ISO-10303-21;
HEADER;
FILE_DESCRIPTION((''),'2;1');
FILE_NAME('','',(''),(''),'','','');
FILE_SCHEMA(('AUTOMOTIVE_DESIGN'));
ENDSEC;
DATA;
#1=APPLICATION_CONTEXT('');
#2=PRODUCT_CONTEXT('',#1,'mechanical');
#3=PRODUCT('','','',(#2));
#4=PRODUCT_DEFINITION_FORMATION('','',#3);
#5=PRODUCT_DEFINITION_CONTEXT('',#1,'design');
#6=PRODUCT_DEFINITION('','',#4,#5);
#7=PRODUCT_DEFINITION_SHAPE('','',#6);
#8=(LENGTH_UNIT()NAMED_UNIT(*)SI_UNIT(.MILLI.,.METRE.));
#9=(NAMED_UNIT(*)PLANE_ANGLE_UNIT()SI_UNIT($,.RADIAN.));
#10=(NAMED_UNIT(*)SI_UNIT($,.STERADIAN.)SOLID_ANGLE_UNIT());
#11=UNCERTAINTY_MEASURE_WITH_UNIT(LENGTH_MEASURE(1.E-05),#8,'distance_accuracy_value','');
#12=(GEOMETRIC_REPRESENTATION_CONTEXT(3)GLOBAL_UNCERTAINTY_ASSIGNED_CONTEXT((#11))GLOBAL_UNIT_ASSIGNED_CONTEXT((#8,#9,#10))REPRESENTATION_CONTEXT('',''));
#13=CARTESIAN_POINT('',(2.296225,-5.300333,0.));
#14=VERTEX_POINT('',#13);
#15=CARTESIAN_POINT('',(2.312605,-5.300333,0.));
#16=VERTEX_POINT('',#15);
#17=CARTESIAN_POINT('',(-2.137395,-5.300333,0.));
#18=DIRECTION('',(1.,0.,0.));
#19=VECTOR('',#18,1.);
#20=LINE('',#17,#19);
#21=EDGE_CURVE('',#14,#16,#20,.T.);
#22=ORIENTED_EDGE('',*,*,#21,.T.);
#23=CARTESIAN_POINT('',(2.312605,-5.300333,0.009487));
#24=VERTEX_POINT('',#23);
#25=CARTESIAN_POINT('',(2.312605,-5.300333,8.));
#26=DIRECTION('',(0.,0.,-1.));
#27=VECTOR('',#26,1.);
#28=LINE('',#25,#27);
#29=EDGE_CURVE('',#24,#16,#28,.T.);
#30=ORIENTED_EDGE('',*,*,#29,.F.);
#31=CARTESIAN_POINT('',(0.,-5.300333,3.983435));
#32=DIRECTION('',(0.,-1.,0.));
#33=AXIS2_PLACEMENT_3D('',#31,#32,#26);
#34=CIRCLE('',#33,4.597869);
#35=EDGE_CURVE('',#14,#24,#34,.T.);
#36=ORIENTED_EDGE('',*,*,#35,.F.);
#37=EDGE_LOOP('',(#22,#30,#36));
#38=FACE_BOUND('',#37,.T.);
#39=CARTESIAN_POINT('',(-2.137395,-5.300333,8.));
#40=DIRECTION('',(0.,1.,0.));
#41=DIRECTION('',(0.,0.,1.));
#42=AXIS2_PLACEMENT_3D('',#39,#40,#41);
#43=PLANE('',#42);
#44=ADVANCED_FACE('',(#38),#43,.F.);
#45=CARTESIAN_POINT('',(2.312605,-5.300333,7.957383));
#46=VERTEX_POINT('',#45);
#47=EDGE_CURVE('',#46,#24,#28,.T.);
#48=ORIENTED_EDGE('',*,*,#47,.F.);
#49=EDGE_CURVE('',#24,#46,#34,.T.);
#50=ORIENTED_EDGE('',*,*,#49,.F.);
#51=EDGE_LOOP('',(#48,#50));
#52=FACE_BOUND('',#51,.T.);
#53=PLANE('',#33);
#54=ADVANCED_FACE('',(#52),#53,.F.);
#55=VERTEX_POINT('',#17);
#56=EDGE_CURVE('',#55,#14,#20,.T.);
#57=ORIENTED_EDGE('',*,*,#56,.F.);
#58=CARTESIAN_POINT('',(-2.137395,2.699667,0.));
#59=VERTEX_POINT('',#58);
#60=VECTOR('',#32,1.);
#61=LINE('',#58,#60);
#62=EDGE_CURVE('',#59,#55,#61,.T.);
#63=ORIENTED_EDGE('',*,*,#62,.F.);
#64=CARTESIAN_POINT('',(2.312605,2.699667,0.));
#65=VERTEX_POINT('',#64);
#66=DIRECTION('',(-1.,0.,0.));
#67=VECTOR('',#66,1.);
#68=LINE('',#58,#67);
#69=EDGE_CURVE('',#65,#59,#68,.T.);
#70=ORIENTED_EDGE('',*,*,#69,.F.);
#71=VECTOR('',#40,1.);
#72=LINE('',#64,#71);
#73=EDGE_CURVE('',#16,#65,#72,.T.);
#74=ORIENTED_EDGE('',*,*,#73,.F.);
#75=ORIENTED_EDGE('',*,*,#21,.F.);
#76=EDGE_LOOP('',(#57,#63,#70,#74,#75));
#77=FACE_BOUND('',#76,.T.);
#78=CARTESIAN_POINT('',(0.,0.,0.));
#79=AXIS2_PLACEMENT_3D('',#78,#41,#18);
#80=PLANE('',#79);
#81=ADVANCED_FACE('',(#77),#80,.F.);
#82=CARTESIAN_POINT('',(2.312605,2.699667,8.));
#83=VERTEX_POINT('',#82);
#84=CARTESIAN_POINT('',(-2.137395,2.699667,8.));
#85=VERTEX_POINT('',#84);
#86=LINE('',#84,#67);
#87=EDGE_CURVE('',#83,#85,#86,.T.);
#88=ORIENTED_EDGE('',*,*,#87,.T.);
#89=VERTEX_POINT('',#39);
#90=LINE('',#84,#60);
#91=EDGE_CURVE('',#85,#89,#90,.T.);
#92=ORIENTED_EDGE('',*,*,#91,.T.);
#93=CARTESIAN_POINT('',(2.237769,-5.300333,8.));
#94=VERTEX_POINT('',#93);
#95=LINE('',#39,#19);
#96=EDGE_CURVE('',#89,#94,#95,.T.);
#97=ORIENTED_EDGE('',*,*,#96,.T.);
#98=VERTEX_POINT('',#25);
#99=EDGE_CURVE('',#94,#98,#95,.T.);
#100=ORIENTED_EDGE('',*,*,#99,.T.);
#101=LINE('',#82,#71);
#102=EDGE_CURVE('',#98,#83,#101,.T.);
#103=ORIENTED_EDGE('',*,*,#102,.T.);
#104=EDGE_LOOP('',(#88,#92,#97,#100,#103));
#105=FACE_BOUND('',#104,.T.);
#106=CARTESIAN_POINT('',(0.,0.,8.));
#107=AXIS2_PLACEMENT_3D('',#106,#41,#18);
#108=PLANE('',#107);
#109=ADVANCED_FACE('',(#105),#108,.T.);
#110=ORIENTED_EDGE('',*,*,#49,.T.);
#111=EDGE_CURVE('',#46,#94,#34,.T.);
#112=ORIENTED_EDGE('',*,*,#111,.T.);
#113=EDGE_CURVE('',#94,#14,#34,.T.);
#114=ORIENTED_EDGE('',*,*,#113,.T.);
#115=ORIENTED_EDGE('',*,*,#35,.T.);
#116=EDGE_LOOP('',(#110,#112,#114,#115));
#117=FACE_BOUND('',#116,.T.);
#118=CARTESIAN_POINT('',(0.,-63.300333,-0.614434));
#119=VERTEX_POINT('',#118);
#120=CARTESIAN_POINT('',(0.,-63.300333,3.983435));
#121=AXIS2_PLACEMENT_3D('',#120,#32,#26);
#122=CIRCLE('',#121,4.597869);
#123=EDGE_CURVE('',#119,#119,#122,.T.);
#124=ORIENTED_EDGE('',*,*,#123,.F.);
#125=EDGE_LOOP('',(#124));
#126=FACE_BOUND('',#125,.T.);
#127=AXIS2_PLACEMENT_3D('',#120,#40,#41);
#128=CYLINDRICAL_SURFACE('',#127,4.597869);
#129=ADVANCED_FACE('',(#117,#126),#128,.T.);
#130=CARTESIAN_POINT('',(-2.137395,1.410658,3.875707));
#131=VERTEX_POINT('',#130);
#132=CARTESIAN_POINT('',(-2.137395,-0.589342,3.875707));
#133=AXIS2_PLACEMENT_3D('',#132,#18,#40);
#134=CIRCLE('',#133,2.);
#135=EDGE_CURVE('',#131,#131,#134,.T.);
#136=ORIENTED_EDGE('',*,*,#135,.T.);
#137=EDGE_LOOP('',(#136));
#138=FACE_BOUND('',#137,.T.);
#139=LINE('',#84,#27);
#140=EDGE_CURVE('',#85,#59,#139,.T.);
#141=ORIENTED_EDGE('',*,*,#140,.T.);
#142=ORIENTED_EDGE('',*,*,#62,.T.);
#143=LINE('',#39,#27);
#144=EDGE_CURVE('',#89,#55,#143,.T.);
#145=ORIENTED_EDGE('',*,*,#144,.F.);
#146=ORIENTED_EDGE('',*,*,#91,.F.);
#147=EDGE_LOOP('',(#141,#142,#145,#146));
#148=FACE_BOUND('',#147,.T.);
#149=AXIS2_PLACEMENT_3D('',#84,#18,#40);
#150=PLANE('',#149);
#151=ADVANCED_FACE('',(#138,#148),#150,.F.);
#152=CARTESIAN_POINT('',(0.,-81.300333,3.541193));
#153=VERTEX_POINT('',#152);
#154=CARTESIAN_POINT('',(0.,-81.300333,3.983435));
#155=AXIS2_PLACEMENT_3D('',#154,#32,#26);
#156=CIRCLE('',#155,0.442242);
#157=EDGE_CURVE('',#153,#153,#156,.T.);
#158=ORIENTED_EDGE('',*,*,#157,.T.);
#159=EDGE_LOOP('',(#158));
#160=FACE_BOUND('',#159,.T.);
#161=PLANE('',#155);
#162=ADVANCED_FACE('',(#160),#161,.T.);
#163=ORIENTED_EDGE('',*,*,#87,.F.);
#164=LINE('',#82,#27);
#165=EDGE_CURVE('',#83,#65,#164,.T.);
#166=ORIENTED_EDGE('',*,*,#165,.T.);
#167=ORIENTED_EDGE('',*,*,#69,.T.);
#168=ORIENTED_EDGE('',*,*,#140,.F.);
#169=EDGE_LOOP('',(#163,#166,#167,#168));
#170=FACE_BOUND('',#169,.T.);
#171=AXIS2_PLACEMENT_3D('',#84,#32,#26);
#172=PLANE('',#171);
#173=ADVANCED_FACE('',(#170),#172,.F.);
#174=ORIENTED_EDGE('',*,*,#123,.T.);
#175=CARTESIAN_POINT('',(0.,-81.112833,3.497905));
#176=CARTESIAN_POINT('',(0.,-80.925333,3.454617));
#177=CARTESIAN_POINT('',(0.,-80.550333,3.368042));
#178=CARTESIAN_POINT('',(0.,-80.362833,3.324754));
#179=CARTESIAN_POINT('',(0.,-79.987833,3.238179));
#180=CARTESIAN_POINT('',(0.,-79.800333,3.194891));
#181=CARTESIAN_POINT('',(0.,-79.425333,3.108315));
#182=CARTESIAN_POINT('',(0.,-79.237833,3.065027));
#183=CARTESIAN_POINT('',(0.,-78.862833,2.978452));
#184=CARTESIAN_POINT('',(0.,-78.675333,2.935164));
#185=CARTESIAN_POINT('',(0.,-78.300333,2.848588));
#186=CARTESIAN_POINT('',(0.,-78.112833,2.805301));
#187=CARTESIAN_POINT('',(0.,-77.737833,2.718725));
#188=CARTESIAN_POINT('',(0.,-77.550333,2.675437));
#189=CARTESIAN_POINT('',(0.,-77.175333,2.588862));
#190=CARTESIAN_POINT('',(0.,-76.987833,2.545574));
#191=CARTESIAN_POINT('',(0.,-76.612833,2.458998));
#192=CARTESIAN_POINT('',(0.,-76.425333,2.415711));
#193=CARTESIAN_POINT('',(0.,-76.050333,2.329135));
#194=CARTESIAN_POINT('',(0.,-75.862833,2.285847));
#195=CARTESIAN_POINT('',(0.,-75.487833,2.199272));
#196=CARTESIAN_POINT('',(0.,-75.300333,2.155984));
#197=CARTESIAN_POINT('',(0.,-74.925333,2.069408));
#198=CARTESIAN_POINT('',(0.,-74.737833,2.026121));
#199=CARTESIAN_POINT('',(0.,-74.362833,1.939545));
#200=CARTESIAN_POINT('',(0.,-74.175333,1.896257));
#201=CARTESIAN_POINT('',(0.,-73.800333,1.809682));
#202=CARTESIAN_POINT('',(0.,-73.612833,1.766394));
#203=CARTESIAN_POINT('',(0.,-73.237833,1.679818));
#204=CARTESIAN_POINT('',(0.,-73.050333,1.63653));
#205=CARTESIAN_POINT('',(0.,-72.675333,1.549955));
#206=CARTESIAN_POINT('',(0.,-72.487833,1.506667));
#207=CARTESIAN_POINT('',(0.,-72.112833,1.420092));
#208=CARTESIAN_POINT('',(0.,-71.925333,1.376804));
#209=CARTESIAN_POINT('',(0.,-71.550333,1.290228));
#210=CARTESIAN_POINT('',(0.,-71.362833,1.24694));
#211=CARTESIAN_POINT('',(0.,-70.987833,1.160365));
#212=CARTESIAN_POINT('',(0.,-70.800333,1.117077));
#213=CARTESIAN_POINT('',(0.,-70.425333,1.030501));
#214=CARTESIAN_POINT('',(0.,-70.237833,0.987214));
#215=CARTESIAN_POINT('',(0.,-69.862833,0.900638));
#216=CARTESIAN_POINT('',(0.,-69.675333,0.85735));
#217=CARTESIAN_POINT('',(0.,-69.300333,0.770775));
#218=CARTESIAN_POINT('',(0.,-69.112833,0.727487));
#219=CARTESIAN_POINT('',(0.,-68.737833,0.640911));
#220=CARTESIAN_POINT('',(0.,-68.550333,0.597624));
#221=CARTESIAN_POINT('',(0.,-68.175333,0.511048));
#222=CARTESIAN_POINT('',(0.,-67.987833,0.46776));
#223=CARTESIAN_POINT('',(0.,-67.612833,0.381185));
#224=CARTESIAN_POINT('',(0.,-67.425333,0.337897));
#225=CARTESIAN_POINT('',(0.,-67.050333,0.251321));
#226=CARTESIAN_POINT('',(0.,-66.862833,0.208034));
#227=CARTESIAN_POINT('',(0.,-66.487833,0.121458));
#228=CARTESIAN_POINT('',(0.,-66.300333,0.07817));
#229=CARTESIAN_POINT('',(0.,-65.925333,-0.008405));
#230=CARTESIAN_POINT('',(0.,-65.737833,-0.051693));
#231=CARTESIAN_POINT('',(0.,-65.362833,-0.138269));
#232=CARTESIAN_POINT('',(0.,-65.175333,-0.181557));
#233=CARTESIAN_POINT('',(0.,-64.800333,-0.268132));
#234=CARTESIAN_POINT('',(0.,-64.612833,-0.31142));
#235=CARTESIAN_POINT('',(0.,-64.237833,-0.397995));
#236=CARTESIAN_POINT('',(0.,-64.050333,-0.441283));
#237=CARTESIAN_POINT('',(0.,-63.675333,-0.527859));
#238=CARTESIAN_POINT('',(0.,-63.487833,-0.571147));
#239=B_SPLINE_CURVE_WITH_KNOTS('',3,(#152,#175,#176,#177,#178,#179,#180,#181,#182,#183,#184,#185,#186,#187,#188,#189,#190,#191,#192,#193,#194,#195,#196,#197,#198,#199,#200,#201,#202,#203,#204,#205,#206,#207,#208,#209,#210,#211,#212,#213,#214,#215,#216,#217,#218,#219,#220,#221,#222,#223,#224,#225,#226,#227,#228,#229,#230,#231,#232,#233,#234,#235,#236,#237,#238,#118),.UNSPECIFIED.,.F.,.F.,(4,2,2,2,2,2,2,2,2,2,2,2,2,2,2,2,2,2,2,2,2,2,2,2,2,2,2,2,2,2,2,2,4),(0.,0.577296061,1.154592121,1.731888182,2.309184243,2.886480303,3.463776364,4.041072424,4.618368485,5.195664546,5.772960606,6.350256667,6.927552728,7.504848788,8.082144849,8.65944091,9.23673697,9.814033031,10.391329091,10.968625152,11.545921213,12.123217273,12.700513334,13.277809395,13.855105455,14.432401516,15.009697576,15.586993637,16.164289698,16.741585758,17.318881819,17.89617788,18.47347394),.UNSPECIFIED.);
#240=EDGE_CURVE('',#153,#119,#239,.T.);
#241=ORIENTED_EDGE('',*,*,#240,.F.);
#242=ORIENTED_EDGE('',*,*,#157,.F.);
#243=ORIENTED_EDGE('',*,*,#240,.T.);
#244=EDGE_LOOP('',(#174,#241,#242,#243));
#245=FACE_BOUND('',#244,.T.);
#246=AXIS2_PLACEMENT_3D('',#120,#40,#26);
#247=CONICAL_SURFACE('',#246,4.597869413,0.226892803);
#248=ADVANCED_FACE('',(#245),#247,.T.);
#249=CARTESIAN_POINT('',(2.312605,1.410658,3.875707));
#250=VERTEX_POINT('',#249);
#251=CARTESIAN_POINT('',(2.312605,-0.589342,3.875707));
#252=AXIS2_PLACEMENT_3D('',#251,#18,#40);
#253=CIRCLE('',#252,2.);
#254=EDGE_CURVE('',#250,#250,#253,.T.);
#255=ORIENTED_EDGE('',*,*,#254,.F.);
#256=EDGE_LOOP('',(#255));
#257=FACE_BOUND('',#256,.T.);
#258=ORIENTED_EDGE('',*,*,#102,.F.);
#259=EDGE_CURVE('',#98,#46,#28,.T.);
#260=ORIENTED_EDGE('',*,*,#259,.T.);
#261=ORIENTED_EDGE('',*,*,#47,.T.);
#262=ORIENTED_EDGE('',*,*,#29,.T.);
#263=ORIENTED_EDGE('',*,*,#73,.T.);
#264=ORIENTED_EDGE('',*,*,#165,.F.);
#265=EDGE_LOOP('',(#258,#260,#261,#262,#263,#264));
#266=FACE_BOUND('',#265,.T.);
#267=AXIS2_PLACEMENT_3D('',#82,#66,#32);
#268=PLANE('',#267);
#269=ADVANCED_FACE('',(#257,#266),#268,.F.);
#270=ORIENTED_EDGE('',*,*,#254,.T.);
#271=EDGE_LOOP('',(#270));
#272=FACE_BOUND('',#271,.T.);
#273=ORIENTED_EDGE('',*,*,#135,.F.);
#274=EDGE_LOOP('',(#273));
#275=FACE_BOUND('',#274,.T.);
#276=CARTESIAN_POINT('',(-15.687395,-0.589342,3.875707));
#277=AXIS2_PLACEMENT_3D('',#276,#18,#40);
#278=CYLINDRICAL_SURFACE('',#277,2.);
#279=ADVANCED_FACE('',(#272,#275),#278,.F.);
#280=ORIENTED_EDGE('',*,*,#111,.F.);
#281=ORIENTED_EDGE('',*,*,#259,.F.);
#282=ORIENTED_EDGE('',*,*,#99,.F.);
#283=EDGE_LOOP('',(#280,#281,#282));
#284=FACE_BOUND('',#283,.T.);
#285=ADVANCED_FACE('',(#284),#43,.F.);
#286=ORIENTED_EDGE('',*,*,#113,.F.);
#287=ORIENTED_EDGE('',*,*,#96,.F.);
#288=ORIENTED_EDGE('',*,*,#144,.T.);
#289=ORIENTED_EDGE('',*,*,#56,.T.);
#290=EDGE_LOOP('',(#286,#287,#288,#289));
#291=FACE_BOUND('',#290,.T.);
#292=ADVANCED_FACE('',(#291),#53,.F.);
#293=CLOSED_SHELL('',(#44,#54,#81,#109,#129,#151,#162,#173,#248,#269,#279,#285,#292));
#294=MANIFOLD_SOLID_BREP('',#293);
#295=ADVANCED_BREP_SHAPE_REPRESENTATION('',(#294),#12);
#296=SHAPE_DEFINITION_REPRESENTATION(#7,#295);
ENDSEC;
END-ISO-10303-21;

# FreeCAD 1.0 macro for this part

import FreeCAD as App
import Part
import Sketcher
Q = App.Units.Quantity


def add_polygon(sketch, points):
    """Adds a closed chain of lines whose ends are joined by coincident constraints."""
    first, n = sketch.GeometryCount, len(points)
    for a, b in zip(points, points[1:] + points[:1]):
        sketch.addGeometry(Part.LineSegment(App.Vector(*a, 0), App.Vector(*b, 0)), False)
    for i in range(n):
        sketch.addConstraint(Sketcher.Constraint("Coincident", first + i, 2, first + (i + 1) % n, 1))

doc = App.newDocument("Part")
body = doc.addObject("PartDesign::Body", "Body")

sketch1 = body.newObject("Sketcher::SketchObject", "Sketch")
sketch1.AttachmentSupport = (doc.getObject("XY_Plane"), [""])
sketch1.MapMode = "FlatFace"
add_polygon(sketch1, [(-2.1, 2.7), (-2.1, -5.3), (2.3, -5.3), (2.3, 2.7)])
sketch1.addConstraint([
    Sketcher.Constraint("Vertical", 0),
    Sketcher.Constraint("Horizontal", 1),
    Sketcher.Constraint("Vertical", 2),
    Sketcher.Constraint("Horizontal", 3),
    Sketcher.Constraint("DistanceY", 0, 2, 0, 1, Q("8 mm")),
    Sketcher.Constraint("DistanceX", 1, 1, 1, 2, Q("4.45 mm")),
    Sketcher.Constraint("DistanceX", 0, 2, -1, 1, Q("2.137395 mm")),
    Sketcher.Constraint("DistanceY", 0, 2, -1, 1, Q("5.300333 mm")),
])
pad1 = body.newObject("PartDesign::Pad", "Pad")
pad1.Profile = sketch1
pad1.Length = 8

sketch2 = body.newObject("Sketcher::SketchObject", "Sketch001")
sketch2.AttachmentSupport = (doc.getObject("XZ_Plane"), [""])
sketch2.MapMode = "FlatFace"
sketch2.AttachmentOffset = App.Placement(App.Vector(0, 0, 5.300333), App.Rotation())
sketch2.addGeometry(Part.Circle(App.Vector(0, 4, 0), App.Vector(0, 0, 1), 4.6), False)
sketch2.addConstraint([
    Sketcher.Constraint("PointOnObject", 0, 3, -2),
    Sketcher.Constraint("Diameter", 0, Q("9.195739 mm")),
    Sketcher.Constraint("DistanceY", -1, 1, 0, 3, Q("3.983435 mm")),
])
pad2 = body.newObject("PartDesign::Pad", "Pad001")
pad2.Profile = sketch2
pad2.Length = 58

sketch3 = body.newObject("Sketcher::SketchObject", "Sketch002")
sketch3.AttachmentSupport = (doc.getObject("YZ_Plane"), [""])
sketch3.MapMode = "FlatFace"
sketch3.AttachmentOffset = App.Placement(App.Vector(0, 0, 2.312605), App.Rotation())
sketch3.addGeometry(Part.Circle(App.Vector(-0.6, 3.9, 0), App.Vector(0, 0, 1), 2), False)
sketch3.addConstraint([
    Sketcher.Constraint("Diameter", 0, Q("4 mm")),
    Sketcher.Constraint("DistanceX", 0, 3, -1, 1, Q("0.589342 mm")),
    Sketcher.Constraint("DistanceY", -1, 1, 0, 3, Q("3.875707 mm")),
])
pocket1 = body.newObject("PartDesign::Pocket", "Pocket")
pocket1.Profile = sketch3
pocket1.Length = 18

sketch4 = body.newObject("Sketcher::SketchObject", "Sketch003")
sketch4.AttachmentSupport = (doc.getObject("XZ_Plane"), [""])
sketch4.MapMode = "FlatFace"
sketch4.AttachmentOffset = App.Placement(App.Vector(0, 0, 63.300333), App.Rotation())
sketch4.addGeometry(Part.Circle(App.Vector(0, 4, 0), App.Vector(0, 0, 1), 4.6), False)
sketch4.addConstraint([
    Sketcher.Constraint("PointOnObject", 0, 3, -2),
    Sketcher.Constraint("Diameter", 0, Q("9.195739 mm")),
    Sketcher.Constraint("DistanceY", -1, 1, 0, 3, Q("3.983435 mm")),
])
pad3 = body.newObject("PartDesign::Pad", "Pad002")
pad3.Profile = sketch4
pad3.Length = 18
pad3.TaperAngle = -13

doc.recompute()
